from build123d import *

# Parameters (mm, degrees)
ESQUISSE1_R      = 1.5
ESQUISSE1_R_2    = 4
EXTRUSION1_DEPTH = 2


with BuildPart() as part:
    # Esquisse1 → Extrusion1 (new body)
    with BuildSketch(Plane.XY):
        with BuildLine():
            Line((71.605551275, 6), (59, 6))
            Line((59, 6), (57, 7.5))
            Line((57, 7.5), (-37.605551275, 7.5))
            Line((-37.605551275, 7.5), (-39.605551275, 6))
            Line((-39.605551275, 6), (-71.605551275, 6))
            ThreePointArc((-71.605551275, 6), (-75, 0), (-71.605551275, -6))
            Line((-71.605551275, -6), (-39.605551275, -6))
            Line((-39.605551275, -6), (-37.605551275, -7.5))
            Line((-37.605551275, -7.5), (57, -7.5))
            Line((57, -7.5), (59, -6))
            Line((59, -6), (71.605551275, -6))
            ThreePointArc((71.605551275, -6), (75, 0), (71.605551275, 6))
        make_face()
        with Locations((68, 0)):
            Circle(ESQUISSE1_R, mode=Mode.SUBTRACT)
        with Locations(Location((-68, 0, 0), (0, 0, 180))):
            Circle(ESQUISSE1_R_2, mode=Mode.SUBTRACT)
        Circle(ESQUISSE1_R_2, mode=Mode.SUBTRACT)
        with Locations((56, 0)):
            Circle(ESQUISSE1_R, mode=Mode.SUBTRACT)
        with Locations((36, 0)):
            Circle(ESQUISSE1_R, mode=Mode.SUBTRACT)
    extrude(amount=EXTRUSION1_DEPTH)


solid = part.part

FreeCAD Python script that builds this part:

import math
import FreeCAD as App
import Part
import Sketcher
from FreeCAD import Vector

doc = App.newDocument("Part")
params = doc.addObject("Spreadsheet::Sheet", "Params")
for row, (alias, value) in enumerate([
    ("sketch1_diameter", "8 mm"),
    ("sketch1_diameter2", "3 mm"),
    ("sketch1_radius", "7 mm"),
    ("sketch1_width", "32 mm"),
    ("pad1_length", "2 mm"),
], start=1):
    params.set(f"A{row}", alias)
    params.set(f"B{row}", "=" + value)
    params.setAlias(f"B{row}", alias)

body = doc.addObject("PartDesign::Body", "Body")

# Sketch on XY plane
sketch1 = body.newObject("Sketcher::SketchObject", "Sketch")
sketch1.AttachmentSupport = (doc.getObject("XY_Plane"), [""])
sketch1.MapMode = "FlatFace"
sketch1.addGeometry([
    Part.LineSegment(Vector(71.6, 6, 0), Vector(59, 6, 0)),  # 0
    Part.LineSegment(Vector(59, 6, 0), Vector(57, 7.5, 0)),  # 1
    Part.LineSegment(Vector(57, 7.5, 0), Vector(-37.6, 7.5, 0)),  # 2
    Part.LineSegment(Vector(-37.6, 7.5, 0), Vector(-39.6, 6, 0)),  # 3
    Part.LineSegment(Vector(-39.6, 6, 0), Vector(-71.6, 6, 0)),  # 4
    Part.ArcOfCircle(Part.Circle(Vector(-68, 0, 0), Vector(0, 0, 1), 7), math.radians(121), math.radians(239)),  # 5
    Part.LineSegment(Vector(-71.6, -6, 0), Vector(-39.6, -6, 0)),  # 6
    Part.LineSegment(Vector(-39.6, -6, 0), Vector(-37.6, -7.5, 0)),  # 7
    Part.LineSegment(Vector(-37.6, -7.5, 0), Vector(57, -7.5, 0)),  # 8
    Part.LineSegment(Vector(57, -7.5, 0), Vector(59, -6, 0)),  # 9
    Part.LineSegment(Vector(59, -6, 0), Vector(71.6, -6, 0)),  # 10
    Part.ArcOfCircle(Part.Circle(Vector(68, 0, 0), Vector(0, 0, 1), 7), math.radians(-59), math.radians(59)),  # 11
    Part.Circle(Vector(-68, 0, 0), Vector(0, 0, 1), 4),  # 12
    Part.Circle(Vector(0, 0, 0), Vector(0, 0, 1), 4),  # 13
    Part.Circle(Vector(36, 0, 0), Vector(0, 0, 1), 1.5),  # 14
    Part.Circle(Vector(56, 0, 0), Vector(0, 0, 1), 1.5),  # 15
    Part.Circle(Vector(68, 0, 0), Vector(0, 0, 1), 1.5),  # 16
], False)
sketch1.addConstraint([
    Sketcher.Constraint("Coincident", 0, 2, 1, 1),
    Sketcher.Constraint("Coincident", 1, 2, 2, 1),
    Sketcher.Constraint("Coincident", 2, 2, 3, 1),
    Sketcher.Constraint("Coincident", 3, 2, 4, 1),
    Sketcher.Constraint("Coincident", 4, 2, 5, 1),
    Sketcher.Constraint("Coincident", 5, 2, 6, 1),
    Sketcher.Constraint("Coincident", 6, 2, 7, 1),
    Sketcher.Constraint("Coincident", 7, 2, 8, 1),
    Sketcher.Constraint("Coincident", 8, 2, 9, 1),
    Sketcher.Constraint("Coincident", 9, 2, 10, 1),
    Sketcher.Constraint("Coincident", 10, 2, 11, 1),
    Sketcher.Constraint("Coincident", 11, 2, 0, 1),
    Sketcher.Constraint("Horizontal", 0),
    Sketcher.Constraint("Horizontal", 2),
    Sketcher.Constraint("Horizontal", 4),
    Sketcher.Constraint("Horizontal", 6),
    Sketcher.Constraint("Horizontal", 8),
    Sketcher.Constraint("Horizontal", 10),
    Sketcher.Constraint("Coincident", 13, 3, -1, 1),
    Sketcher.Constraint("Coincident", 12, 3, 5, 3),
    Sketcher.Constraint("Coincident", 16, 3, 11, 3),
    Sketcher.Constraint("Equal", 5, 11),
    Sketcher.Constraint("Equal", 12, 13),
    Sketcher.Constraint("Equal", 14, 15),
    Sketcher.Constraint("Equal", 15, 16),
    Sketcher.Constraint("Symmetric", 5, 3, 11, 3, -1, 1),
    Sketcher.Constraint("Symmetric", 5, 2, 10, 2, -2),
    Sketcher.Constraint("Symmetric", 3, 2, 6, 2, -1),
    Sketcher.Constraint("Symmetric", 2, 2, 7, 2, -1),
    Sketcher.Constraint("Symmetric", 0, 2, 9, 2, -1),
    Sketcher.Constraint("PointOnObject", 14, 3, -1),
    Sketcher.Constraint("PointOnObject", 15, 3, -1),
    Sketcher.Constraint("Parallel", 1, 7),
    Sketcher.Constraint("Parallel", 3, 9),
    Sketcher.Constraint("Diameter", 12, 8.0),
    Sketcher.Constraint("Diameter", 14, 3.0),
    Sketcher.Constraint("Radius", 5, 7.0),
    Sketcher.Constraint("DistanceX", 4, 2, 4, 1, 32.0),
    Sketcher.Constraint("DistanceX", 5, 3, -1, 1, 68.0),
    Sketcher.Constraint("DistanceX", -1, 1, 14, 3, 36.0),
    Sketcher.Constraint("DistanceX", -1, 1, 15, 3, 56.0),
    Sketcher.Constraint("DistanceX", -1, 1, 0, 2, 59.0),
    Sketcher.Constraint("DistanceY", -1, 1, 0, 2, 6.0),
    Sketcher.Constraint("DistanceX", -1, 1, 1, 2, 57.0),
    Sketcher.Constraint("DistanceY", 7, 2, 2, 2, 15.0),
])
sketch1.setExpression("Constraints[34]", "Params.sketch1_diameter")
sketch1.setExpression("Constraints[35]", "Params.sketch1_diameter2")
sketch1.setExpression("Constraints[36]", "Params.sketch1_radius")
sketch1.setExpression("Constraints[37]", "Params.sketch1_width")
pad1 = body.newObject("PartDesign::Pad", "Pad")
pad1.Profile = sketch1
pad1.setExpression("Length", "Params.pad1_length")

doc.recompute()
